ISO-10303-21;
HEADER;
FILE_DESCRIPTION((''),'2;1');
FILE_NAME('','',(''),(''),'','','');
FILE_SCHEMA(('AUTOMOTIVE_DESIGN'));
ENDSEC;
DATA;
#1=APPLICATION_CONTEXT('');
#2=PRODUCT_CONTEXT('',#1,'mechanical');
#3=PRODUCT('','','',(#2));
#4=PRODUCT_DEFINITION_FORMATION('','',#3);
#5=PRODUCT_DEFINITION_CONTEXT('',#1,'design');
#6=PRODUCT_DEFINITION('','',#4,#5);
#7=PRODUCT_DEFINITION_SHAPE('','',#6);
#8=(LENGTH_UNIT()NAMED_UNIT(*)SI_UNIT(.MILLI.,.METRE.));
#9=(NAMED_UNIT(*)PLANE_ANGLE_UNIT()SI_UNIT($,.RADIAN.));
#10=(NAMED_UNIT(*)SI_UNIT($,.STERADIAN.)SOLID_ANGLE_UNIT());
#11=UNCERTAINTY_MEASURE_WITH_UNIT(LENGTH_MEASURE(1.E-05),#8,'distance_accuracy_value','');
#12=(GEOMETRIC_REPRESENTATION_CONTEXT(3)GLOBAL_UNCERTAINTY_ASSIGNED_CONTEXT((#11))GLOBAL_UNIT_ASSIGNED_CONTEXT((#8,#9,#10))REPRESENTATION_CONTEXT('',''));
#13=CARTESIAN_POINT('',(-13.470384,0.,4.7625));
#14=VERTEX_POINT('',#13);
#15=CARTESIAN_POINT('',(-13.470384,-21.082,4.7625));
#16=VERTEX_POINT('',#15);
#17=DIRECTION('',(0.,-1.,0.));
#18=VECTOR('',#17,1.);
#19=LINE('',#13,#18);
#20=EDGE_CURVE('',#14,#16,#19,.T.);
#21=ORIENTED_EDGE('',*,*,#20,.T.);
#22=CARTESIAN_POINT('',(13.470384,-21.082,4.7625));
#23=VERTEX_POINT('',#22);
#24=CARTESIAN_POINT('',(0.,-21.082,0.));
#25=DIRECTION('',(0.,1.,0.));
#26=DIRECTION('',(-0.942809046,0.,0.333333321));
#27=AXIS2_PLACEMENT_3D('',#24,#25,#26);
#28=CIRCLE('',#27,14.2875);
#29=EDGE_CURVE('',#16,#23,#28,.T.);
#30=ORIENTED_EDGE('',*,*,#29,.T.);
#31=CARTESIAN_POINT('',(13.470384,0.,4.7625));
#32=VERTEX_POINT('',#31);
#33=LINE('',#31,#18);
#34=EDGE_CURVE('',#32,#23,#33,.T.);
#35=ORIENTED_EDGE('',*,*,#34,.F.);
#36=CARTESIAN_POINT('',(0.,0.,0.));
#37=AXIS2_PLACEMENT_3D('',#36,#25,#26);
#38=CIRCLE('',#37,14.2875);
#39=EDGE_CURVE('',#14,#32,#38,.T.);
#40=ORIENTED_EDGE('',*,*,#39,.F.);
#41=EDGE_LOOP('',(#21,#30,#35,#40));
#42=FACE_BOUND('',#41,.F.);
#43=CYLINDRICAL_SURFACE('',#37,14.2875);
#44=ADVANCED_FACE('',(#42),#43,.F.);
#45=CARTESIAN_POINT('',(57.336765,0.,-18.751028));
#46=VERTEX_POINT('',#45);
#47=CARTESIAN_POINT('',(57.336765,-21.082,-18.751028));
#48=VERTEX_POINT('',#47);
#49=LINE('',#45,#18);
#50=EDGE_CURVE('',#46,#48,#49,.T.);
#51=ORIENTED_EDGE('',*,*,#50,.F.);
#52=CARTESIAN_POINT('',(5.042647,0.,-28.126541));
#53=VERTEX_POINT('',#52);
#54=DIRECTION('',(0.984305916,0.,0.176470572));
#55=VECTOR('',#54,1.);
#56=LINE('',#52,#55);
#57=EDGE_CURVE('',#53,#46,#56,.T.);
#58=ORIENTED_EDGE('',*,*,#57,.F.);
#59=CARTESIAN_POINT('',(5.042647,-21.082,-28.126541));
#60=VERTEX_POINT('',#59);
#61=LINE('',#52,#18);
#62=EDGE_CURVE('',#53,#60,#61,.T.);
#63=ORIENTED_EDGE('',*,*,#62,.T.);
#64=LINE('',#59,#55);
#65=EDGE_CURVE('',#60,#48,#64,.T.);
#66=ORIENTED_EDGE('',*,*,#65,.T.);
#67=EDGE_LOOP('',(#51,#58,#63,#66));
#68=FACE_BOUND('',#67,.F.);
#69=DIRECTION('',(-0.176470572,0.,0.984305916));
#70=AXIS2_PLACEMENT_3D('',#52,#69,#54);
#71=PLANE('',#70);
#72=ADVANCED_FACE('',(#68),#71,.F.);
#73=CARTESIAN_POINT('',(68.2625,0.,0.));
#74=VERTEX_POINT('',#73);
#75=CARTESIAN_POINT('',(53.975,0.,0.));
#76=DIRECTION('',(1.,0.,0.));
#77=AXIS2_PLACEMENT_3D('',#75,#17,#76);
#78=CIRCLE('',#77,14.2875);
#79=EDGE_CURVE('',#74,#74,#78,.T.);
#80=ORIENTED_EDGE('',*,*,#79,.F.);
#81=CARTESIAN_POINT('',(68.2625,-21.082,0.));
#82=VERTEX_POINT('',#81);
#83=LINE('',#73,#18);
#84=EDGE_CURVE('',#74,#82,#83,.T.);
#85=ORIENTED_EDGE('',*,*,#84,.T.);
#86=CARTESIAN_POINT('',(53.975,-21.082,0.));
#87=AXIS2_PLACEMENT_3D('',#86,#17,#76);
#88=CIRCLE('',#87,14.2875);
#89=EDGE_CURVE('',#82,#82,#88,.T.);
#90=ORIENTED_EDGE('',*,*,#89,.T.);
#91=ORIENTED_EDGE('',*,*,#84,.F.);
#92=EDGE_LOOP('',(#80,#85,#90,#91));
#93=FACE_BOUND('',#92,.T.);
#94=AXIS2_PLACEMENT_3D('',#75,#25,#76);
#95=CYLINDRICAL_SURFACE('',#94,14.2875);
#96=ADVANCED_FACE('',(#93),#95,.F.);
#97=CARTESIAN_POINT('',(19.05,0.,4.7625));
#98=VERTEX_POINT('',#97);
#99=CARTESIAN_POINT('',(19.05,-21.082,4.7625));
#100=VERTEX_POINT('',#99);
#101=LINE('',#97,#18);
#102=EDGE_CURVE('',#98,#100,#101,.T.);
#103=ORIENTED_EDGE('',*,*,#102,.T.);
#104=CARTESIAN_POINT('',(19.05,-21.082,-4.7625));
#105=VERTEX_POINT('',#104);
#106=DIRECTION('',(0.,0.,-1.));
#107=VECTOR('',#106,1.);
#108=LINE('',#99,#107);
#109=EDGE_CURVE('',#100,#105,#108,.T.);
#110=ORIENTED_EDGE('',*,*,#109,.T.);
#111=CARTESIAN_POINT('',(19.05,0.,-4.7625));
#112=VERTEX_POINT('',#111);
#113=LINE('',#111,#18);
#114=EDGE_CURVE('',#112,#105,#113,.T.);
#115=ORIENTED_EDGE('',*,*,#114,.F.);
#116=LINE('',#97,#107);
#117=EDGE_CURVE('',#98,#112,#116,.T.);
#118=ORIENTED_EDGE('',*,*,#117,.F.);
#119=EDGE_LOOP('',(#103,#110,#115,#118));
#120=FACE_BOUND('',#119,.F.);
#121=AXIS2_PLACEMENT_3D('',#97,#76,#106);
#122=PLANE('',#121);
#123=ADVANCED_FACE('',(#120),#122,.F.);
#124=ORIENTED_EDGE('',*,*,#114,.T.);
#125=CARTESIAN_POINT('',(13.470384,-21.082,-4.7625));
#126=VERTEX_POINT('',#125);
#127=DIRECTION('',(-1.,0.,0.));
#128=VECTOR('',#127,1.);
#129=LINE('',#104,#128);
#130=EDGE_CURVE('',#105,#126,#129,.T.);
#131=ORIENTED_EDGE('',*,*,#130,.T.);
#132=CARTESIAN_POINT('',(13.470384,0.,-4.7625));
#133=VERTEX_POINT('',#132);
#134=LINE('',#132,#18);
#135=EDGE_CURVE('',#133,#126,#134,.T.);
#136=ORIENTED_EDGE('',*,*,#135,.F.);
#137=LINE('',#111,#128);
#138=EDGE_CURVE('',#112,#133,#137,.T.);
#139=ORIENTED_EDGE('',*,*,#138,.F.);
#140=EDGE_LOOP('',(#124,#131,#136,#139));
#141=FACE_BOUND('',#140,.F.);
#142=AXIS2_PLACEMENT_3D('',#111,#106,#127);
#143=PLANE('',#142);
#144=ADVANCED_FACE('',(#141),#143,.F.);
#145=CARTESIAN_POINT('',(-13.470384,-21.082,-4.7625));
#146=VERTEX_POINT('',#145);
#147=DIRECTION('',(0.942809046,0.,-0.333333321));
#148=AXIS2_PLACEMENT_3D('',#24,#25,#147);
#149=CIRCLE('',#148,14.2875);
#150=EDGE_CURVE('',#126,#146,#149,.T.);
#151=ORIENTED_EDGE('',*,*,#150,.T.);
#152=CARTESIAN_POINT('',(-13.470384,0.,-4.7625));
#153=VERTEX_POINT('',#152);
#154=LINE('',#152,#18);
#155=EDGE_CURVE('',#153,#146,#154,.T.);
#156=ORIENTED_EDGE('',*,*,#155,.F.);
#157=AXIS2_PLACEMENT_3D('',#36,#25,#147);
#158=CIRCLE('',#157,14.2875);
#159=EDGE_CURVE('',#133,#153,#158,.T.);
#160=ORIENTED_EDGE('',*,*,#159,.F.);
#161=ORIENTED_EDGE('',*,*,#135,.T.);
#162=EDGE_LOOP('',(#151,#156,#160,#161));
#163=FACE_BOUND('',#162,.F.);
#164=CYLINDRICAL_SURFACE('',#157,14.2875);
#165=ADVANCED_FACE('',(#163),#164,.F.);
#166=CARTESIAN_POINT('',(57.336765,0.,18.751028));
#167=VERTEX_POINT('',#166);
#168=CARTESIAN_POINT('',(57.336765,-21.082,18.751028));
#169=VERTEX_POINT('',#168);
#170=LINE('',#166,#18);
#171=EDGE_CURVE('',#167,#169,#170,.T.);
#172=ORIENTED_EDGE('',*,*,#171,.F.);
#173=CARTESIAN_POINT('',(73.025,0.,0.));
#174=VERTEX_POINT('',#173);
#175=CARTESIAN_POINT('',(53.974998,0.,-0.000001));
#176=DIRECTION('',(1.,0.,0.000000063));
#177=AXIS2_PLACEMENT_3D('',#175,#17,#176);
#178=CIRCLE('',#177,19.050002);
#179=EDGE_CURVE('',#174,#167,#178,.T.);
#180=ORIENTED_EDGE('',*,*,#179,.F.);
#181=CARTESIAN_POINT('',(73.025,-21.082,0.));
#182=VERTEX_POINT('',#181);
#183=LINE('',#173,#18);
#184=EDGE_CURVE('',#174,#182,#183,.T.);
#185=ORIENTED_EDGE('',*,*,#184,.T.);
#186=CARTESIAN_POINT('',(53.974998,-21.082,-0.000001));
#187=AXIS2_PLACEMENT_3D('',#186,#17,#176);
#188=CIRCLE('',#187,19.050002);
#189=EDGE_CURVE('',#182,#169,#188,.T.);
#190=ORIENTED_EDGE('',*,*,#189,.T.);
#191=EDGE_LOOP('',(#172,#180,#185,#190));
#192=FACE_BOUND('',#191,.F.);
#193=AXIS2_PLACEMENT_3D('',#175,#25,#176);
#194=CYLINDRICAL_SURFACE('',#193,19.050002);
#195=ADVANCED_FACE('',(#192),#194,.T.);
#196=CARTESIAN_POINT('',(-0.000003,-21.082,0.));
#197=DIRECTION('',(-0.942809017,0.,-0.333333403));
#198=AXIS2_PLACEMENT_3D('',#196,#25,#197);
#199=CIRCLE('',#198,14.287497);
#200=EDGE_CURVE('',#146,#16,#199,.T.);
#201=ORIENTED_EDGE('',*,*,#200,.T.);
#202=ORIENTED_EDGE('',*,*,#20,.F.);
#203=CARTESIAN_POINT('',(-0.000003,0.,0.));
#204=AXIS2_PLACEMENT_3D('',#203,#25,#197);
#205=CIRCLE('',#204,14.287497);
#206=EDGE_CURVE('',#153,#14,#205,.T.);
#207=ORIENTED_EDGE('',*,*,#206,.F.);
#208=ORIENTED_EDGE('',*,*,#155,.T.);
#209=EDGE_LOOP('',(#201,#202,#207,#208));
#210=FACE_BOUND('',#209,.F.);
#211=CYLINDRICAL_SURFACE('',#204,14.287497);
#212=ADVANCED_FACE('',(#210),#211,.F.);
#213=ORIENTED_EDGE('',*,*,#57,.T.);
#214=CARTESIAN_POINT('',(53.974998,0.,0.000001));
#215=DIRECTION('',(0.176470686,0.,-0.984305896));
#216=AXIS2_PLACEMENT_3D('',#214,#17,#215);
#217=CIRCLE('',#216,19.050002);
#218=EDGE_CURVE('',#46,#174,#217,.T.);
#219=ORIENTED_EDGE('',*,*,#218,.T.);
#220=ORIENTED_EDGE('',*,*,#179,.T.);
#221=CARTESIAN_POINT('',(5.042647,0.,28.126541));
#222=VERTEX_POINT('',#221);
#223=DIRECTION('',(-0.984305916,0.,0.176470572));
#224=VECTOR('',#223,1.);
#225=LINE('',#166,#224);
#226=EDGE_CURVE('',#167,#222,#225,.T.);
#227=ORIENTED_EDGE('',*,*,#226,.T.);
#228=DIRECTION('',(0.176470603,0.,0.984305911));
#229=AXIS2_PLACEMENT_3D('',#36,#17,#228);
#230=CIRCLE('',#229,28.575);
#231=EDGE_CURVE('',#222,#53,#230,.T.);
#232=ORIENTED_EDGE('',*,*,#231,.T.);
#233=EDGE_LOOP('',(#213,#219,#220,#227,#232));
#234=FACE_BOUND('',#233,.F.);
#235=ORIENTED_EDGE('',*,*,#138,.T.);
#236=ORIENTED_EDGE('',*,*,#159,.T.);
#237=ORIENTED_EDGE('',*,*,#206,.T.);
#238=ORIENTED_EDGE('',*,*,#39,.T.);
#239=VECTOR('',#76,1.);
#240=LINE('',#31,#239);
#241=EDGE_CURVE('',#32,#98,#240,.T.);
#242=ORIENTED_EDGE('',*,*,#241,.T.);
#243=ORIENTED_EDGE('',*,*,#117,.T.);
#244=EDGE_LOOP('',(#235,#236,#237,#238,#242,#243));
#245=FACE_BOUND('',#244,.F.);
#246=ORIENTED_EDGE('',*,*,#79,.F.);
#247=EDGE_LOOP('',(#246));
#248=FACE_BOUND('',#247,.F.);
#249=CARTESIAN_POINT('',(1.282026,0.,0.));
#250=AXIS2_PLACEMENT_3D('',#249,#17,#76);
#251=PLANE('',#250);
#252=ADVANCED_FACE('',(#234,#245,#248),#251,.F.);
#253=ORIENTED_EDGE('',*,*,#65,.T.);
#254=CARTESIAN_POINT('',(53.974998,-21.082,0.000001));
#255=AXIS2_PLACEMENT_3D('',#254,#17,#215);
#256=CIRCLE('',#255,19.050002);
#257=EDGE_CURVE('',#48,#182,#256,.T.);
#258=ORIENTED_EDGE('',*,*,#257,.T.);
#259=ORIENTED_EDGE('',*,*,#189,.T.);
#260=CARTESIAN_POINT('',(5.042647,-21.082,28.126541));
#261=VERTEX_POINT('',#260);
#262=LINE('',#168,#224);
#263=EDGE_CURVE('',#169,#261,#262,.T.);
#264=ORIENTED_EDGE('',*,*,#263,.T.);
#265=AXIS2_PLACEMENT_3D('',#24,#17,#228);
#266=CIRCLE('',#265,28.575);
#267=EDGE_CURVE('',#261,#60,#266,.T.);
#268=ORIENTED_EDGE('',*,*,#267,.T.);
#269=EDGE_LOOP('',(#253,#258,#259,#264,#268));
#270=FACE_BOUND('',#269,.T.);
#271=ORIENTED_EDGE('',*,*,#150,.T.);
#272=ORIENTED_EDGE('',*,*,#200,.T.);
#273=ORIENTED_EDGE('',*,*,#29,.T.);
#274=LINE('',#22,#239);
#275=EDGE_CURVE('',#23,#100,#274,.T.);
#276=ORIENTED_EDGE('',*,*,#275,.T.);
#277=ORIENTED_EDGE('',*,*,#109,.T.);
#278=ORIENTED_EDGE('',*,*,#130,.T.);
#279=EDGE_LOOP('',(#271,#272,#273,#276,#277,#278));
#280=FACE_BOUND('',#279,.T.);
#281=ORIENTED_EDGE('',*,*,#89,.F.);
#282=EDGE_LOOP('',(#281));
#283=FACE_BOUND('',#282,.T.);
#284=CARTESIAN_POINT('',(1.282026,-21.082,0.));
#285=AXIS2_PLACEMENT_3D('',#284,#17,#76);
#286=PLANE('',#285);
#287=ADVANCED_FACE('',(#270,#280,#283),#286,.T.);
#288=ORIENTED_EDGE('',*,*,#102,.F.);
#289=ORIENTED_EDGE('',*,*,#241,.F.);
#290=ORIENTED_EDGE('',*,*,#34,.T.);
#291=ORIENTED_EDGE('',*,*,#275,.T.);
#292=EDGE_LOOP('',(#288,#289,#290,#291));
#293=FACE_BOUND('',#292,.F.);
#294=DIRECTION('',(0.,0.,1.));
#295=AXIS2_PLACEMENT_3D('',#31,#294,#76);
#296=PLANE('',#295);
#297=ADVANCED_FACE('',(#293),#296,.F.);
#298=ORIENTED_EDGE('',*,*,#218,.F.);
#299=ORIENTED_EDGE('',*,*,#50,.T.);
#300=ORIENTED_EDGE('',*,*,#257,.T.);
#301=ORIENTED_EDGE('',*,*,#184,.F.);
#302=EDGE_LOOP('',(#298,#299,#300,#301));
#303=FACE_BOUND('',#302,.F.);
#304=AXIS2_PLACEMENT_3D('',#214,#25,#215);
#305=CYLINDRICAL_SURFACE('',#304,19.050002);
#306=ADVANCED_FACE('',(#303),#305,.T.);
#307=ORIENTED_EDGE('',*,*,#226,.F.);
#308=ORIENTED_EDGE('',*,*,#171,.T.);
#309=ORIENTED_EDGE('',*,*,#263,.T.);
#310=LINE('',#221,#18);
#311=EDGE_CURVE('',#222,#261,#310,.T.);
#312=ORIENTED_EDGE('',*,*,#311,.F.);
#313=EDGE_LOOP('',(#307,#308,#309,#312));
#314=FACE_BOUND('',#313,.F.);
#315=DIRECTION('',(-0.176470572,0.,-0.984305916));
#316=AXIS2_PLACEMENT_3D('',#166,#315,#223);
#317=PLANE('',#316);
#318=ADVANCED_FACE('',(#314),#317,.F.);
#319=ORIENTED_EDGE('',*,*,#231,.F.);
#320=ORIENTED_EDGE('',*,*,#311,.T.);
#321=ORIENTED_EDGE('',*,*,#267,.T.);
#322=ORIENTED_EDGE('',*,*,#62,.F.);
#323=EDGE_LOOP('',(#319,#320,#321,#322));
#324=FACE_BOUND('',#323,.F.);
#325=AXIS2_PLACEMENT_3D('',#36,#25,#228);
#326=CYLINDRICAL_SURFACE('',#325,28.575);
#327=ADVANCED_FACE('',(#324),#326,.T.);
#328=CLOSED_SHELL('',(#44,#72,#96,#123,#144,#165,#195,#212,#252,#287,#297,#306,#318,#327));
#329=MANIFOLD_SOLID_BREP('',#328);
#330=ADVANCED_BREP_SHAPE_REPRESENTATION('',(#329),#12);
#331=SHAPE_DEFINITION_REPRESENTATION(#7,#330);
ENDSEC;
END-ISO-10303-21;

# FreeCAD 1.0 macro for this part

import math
import FreeCAD as App
import Part
import Sketcher
Q = App.Units.Quantity

doc = App.newDocument("Part")
body = doc.addObject("PartDesign::Body", "Body")

# Sketch on XZ plane
sketch1 = doc.addObject("Sketcher::SketchObject", "Sketch")
body.addObject(sketch1)
sketch1.AttachmentSupport = (doc.XZ_Plane, [""])
sketch1.MapMode = "FlatFace"
sketch1.addGeometry([
    Part.ArcOfCircle(Part.Circle(App.Vector(0, 0, 0), App.Vector(0, 0, 1), 29), math.radians(80), math.radians(280)),  # 0
    Part.LineSegment(App.Vector(5, -28, 0), App.Vector(57, -19, 0)),  # 1
    Part.ArcOfCircle(Part.Circle(App.Vector(54, 0, 0), App.Vector(0, 0, 1), 19), math.radians(-80), math.radians(0)),  # 2
    Part.ArcOfCircle(Part.Circle(App.Vector(54, 0, 0), App.Vector(0, 0, 1), 19), math.radians(0), math.radians(80)),  # 3
    Part.LineSegment(App.Vector(57, 19, 0), App.Vector(5, 28, 0)),  # 4
    Part.ArcOfCircle(Part.Circle(App.Vector(0, 0, 0), App.Vector(0, 0, 1), 14), math.radians(19), math.radians(161)),  # 5
    Part.LineSegment(App.Vector(13, 5, 0), App.Vector(19, 5, 0)),  # 6
    Part.LineSegment(App.Vector(19, 5, 0), App.Vector(19, -5, 0)),  # 7
    Part.LineSegment(App.Vector(19, -5, 0), App.Vector(13, -5, 0)),  # 8
    Part.ArcOfCircle(Part.Circle(App.Vector(0, 0, 0), App.Vector(0, 0, 1), 14), math.radians(-161), math.radians(-19)),  # 9
    Part.ArcOfCircle(Part.Circle(App.Vector(0, 0, 0), App.Vector(0, 0, 1), 14), math.radians(161), math.radians(199)),  # 10
    Part.Circle(App.Vector(54, 0, 0), App.Vector(0, 0, 1), 14),  # 11
], False)
sketch1.addConstraint([
    Sketcher.Constraint("Tangent", 0, 2, 1, 1),
    Sketcher.Constraint("Tangent", 1, 2, 2, 1),
    Sketcher.Constraint("Tangent", 2, 2, 3, 1),
    Sketcher.Constraint("Tangent", 3, 2, 4, 1),
    Sketcher.Constraint("Tangent", 4, 2, 0, 1),
    Sketcher.Constraint("Coincident", 5, 1, 6, 1),
    Sketcher.Constraint("Coincident", 6, 2, 7, 1),
    Sketcher.Constraint("Coincident", 7, 2, 8, 1),
    Sketcher.Constraint("Coincident", 8, 2, 9, 2),
    Sketcher.Constraint("Tangent", 9, 1, 10, 2),
    Sketcher.Constraint("Tangent", 10, 1, 5, 2),
    Sketcher.Constraint("Horizontal", 6),
    Sketcher.Constraint("Vertical", 7),
    Sketcher.Constraint("Horizontal", 8),
    Sketcher.Constraint("Coincident", 0, 3, -1, 1),
    Sketcher.Constraint("Coincident", 5, 3, -1, 1),
    Sketcher.Constraint("Coincident", 9, 3, -1, 1),
    Sketcher.Constraint("Coincident", 11, 3, 2, 3),
    Sketcher.Constraint("Equal", 2, 3),
    Sketcher.Constraint("Equal", 9, 11),
    Sketcher.Constraint("PointOnObject", 2, 3, -1),
    Sketcher.Constraint("PointOnObject", 2, 2, -1),
    Sketcher.Constraint("Horizontal", 8, 2, 9, 1),
    Sketcher.Constraint("Horizontal", 6, 2, 10, 1),
    Sketcher.Constraint("Vertical", 5, 1, 8, 2),
    Sketcher.Constraint("Radius", 2, Q("0.7500001 in")),
    Sketcher.Constraint("Diameter", 11, Q("1.125 in")),
    Sketcher.Constraint("Radius", 0, Q("1.125 in")),
    Sketcher.Constraint("DistanceY", 7, 2, 7, 1, Q("0.375 in")),
    Sketcher.Constraint("DistanceX", -1, 1, 6, 2, Q("0.75 in")),
    Sketcher.Constraint("DistanceX", -1, 1, 2, 3, Q("2.1249999 in")),
])
pad1 = doc.addObject("PartDesign::Pad", "Pad")
body.addObject(pad1)
pad1.Profile = sketch1
pad1.Length = Q("0.83 in")

doc.recompute()
